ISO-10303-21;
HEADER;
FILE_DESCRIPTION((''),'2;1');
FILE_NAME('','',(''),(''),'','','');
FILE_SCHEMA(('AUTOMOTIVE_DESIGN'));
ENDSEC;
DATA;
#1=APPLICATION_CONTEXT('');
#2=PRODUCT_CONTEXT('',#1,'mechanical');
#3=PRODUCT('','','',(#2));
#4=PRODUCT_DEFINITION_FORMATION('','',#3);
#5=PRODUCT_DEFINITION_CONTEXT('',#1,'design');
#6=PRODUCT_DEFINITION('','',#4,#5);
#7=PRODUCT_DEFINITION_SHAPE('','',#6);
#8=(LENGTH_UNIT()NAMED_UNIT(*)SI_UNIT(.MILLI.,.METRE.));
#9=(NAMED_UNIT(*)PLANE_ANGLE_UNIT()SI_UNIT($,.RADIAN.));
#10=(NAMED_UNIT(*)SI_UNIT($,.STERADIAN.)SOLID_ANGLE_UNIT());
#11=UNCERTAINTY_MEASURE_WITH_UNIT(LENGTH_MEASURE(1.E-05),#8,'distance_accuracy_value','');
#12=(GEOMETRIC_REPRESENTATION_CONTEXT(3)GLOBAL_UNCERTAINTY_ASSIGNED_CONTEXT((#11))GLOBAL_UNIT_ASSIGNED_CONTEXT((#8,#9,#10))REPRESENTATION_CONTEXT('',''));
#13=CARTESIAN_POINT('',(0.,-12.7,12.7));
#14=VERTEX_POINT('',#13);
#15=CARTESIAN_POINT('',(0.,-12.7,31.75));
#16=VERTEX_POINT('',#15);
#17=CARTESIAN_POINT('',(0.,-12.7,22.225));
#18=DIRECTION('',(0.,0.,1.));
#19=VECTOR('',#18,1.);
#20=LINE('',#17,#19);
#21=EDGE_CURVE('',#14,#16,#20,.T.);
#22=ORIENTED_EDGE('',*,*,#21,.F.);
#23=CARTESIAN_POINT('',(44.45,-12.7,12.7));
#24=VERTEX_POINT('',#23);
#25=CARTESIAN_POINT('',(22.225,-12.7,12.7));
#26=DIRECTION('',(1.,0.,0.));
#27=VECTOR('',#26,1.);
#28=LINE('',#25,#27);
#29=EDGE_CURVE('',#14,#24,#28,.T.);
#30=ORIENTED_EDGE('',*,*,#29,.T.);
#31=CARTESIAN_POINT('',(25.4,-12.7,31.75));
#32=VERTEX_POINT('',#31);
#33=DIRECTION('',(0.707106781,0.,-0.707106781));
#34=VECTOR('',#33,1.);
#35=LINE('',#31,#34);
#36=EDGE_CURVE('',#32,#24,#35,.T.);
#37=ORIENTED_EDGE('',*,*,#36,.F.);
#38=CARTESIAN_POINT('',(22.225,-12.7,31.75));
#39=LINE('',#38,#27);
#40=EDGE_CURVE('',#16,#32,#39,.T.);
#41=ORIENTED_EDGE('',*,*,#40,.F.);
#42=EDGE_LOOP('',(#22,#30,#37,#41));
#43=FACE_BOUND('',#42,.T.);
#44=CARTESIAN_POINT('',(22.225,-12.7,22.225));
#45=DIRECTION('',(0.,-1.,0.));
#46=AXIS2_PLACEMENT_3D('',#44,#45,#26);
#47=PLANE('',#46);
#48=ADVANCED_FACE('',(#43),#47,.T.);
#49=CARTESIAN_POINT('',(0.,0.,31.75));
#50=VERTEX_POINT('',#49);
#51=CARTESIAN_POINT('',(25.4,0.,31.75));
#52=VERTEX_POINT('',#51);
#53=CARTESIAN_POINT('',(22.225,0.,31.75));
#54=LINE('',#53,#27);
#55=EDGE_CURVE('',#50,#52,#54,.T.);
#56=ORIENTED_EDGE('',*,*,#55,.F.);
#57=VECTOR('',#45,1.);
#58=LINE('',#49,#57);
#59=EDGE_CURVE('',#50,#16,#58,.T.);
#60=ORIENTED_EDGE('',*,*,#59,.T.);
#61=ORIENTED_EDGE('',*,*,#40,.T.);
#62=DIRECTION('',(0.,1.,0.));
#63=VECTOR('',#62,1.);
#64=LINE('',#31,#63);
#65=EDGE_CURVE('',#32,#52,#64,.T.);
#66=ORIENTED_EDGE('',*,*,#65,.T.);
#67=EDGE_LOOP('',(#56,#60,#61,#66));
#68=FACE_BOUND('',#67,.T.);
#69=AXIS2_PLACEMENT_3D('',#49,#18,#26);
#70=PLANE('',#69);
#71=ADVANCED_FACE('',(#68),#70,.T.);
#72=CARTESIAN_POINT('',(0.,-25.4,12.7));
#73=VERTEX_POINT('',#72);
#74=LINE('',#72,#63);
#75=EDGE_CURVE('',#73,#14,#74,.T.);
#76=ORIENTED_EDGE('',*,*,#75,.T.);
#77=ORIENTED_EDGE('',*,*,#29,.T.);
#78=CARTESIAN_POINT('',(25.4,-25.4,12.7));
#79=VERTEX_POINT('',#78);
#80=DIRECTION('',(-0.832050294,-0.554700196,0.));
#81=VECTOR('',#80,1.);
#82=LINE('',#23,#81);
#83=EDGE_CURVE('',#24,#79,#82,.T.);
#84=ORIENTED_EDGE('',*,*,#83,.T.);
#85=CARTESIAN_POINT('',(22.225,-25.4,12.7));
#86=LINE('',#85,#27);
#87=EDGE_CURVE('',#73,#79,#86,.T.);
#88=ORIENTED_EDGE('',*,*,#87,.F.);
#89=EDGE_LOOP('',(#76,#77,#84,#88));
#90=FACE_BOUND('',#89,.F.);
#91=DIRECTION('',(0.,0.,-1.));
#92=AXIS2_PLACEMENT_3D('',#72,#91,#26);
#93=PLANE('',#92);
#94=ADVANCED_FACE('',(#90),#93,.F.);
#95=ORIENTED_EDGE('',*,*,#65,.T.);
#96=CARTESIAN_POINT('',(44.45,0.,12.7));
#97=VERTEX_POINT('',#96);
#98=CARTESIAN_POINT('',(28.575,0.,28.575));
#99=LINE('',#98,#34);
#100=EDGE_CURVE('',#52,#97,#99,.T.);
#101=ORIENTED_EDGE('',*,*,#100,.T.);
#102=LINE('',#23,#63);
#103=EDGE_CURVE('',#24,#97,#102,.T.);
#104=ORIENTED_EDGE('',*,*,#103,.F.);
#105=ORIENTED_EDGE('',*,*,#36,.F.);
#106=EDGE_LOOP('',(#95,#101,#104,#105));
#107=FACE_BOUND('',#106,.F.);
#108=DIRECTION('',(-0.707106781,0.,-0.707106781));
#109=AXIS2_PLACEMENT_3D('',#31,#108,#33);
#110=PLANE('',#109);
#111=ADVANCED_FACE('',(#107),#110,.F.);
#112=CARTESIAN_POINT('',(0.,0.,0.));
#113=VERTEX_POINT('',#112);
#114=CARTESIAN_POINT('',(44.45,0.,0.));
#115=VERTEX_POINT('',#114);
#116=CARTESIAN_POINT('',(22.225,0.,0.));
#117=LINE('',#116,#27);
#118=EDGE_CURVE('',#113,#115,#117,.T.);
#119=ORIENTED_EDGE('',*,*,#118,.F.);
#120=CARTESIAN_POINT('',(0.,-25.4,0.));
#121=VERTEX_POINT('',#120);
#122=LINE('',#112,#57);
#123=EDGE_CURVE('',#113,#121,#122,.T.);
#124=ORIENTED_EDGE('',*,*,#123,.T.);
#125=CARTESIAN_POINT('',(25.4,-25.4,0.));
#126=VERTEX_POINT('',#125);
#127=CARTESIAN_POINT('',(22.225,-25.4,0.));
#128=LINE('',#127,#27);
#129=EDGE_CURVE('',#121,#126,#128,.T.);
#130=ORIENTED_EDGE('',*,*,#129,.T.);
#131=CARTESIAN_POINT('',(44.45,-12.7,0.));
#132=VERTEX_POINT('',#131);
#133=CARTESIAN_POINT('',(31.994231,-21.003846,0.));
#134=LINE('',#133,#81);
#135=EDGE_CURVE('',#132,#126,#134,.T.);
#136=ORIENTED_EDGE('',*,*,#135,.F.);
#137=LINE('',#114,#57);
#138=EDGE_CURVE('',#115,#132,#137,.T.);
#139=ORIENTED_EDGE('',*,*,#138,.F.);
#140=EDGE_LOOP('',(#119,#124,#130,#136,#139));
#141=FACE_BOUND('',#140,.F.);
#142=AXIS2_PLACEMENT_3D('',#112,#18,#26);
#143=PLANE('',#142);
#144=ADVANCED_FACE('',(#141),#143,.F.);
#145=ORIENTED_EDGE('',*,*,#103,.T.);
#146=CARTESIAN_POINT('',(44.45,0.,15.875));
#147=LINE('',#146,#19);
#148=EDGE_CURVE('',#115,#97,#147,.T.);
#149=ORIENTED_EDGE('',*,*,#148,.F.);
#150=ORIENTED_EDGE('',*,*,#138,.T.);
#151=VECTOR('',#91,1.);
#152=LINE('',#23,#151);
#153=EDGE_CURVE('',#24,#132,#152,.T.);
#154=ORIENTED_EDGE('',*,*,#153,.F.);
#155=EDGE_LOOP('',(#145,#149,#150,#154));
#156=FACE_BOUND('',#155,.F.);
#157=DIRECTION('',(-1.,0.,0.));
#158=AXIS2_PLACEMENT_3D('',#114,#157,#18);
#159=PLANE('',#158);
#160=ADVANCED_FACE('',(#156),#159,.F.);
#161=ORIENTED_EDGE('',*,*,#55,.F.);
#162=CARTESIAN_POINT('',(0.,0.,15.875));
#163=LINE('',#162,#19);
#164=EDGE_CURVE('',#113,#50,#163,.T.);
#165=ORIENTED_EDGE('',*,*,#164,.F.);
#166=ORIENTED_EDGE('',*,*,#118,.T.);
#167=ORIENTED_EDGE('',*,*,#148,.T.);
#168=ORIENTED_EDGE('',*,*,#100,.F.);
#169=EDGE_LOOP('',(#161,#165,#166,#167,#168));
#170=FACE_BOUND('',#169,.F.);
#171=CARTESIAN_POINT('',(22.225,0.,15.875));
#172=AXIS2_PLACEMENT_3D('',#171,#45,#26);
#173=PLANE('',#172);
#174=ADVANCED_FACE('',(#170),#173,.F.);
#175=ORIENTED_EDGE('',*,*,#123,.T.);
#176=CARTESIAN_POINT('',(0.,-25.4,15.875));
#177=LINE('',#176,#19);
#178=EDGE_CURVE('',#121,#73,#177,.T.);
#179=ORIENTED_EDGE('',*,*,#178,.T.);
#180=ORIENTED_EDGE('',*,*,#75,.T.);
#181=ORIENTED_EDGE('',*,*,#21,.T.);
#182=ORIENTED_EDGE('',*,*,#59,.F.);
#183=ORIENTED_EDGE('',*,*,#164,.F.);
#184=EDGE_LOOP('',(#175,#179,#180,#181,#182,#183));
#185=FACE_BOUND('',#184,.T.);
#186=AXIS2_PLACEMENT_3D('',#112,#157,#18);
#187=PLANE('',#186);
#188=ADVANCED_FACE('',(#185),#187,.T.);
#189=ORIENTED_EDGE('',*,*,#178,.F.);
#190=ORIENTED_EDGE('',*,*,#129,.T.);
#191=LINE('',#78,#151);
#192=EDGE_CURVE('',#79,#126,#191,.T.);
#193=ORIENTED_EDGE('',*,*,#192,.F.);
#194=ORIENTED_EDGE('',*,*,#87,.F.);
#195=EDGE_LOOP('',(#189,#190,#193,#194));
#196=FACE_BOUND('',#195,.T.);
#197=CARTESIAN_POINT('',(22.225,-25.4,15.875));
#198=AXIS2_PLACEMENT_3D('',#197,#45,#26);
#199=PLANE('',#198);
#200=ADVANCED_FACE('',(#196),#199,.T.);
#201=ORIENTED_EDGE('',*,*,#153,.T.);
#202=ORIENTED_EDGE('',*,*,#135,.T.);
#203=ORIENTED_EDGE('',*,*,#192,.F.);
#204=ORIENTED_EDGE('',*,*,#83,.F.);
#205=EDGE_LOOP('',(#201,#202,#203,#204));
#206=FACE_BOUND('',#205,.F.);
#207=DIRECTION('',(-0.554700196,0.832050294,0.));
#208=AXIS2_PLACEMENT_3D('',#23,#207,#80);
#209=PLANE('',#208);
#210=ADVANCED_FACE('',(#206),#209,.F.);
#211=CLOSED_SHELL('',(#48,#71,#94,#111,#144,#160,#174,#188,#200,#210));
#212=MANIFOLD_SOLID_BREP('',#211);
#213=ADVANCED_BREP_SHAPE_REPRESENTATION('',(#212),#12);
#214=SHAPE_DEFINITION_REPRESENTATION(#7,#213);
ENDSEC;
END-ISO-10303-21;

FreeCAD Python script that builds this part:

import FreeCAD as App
import Part
import Sketcher

V = App.Vector
Q = App.Units.Quantity

doc = App.newDocument("Part")
params = doc.addObject("Spreadsheet::Sheet", "Params")
for row, (alias, value) in enumerate([
    ("sketch1_width", "1.75 in"),
    ("sketch1_height", "1.25 in"),
    ("pad1_length", "1 in"),
    ("sketch2_width", "1.75 in"),
    ("sketch2_height", "0.75 in"),
    ("pocket1_length", "0.5 in"),
    ("sketch3_width", "0.75 in"),
    ("sketch4_height", "0.5 in"),
    ("sketch4_width", "0.75 in"),
], start=1):
    params.set(f"A{row}", alias)
    params.set(f"B{row}", "=" + value)
    params.setAlias(f"B{row}", alias)

body = doc.addObject("PartDesign::Body", "Body")

sketch1 = doc.addObject("Sketcher::SketchObject", "Sketch")
body.addObject(sketch1)
sketch1.AttachmentSupport = (doc.XZ_Plane, [""])
sketch1.MapMode = "FlatFace"
sketch1.addGeometry([
    Part.LineSegment(V(0, 31.75, 0), V(0, 0, 0)),
    Part.LineSegment(V(0, 0, 0), V(44.45, 0, 0)),
    Part.LineSegment(V(44.45, 0, 0), V(44.45, 31.75, 0)),
    Part.LineSegment(V(44.45, 31.75, 0), V(0, 31.75, 0)),
], False)
sketch1.addConstraint([
    Sketcher.Constraint("Coincident", 0, 2, 1, 1),
    Sketcher.Constraint("Coincident", 1, 2, 2, 1),
    Sketcher.Constraint("Coincident", 2, 2, 3, 1),
    Sketcher.Constraint("Coincident", 3, 2, 0, 1),
    Sketcher.Constraint("Vertical", 0),
    Sketcher.Constraint("Horizontal", 1),
    Sketcher.Constraint("Vertical", 2),
    Sketcher.Constraint("Horizontal", 3),
    Sketcher.Constraint("Coincident", 0, 2, -1, 1),
    Sketcher.Constraint("DistanceX", 1, 1, 1, 2, Q("1.75 in")),
    Sketcher.Constraint("DistanceY", 0, 2, 0, 1, Q("1.25 in")),
])
sketch1.setExpression("Constraints[9]", "Params.sketch1_width")
sketch1.setExpression("Constraints[10]", "Params.sketch1_height")
pad1 = doc.addObject("PartDesign::Pad", "Pad")
body.addObject(pad1)
pad1.Profile = sketch1
pad1.setExpression("Length", "Params.pad1_length")

sketch2 = doc.addObject("Sketcher::SketchObject", "Sketch001")
body.addObject(sketch2)
sketch2.AttachmentSupport = (doc.XZ_Plane, [""])
sketch2.MapMode = "FlatFace"
sketch2.AttachmentOffset = App.Placement(V(0, 0, 1 * 25.4), App.Rotation())
sketch2.addGeometry([
    Part.LineSegment(V(0, 31.75, 0), V(0, 12.7, 0)),
    Part.LineSegment(V(0, 12.7, 0), V(44.45, 12.7, 0)),
    Part.LineSegment(V(44.45, 12.7, 0), V(44.45, 31.75, 0)),
    Part.LineSegment(V(44.45, 31.75, 0), V(0, 31.75, 0)),
], False)
sketch2.addConstraint([
    Sketcher.Constraint("Coincident", 0, 2, 1, 1),
    Sketcher.Constraint("Coincident", 1, 2, 2, 1),
    Sketcher.Constraint("Coincident", 2, 2, 3, 1),
    Sketcher.Constraint("Coincident", 3, 2, 0, 1),
    Sketcher.Constraint("Vertical", 0),
    Sketcher.Constraint("Horizontal", 1),
    Sketcher.Constraint("Vertical", 2),
    Sketcher.Constraint("Horizontal", 3),
    Sketcher.Constraint("PointOnObject", 0, 2, -2),
    Sketcher.Constraint("DistanceX", 1, 1, 1, 2, Q("1.75 in")),
    Sketcher.Constraint("DistanceY", 0, 2, 0, 1, Q("0.75 in")),
    Sketcher.Constraint("DistanceY", -1, 1, 0, 2, Q("0.5 in")),
])
sketch2.setExpression("Constraints[9]", "Params.sketch2_width")
sketch2.setExpression("Constraints[10]", "Params.sketch2_height")
pocket1 = doc.addObject("PartDesign::Pocket", "Pocket")
body.addObject(pocket1)
pocket1.Profile = sketch2
pocket1.setExpression("Length", "Params.pocket1_length")

sketch3 = doc.addObject("Sketcher::SketchObject", "Sketch002")
body.addObject(sketch3)
sketch3.AttachmentSupport = (doc.XZ_Plane, [""])
sketch3.MapMode = "FlatFace"
sketch3.AttachmentOffset = App.Placement(V(0, 0, 0.5 * 25.4), App.Rotation())
sketch3.addGeometry([
    Part.LineSegment(V(44.45, 31.75, 0), V(25.4, 31.75, 0)),
    Part.LineSegment(V(25.4, 31.75, 0), V(44.45, 12.7, 0)),
    Part.LineSegment(V(44.45, 12.7, 0), V(44.45, 31.75, 0)),
], False)
sketch3.addConstraint([
    Sketcher.Constraint("Coincident", 0, 2, 1, 1),
    Sketcher.Constraint("Coincident", 1, 2, 2, 1),
    Sketcher.Constraint("Coincident", 2, 2, 0, 1),
    Sketcher.Constraint("Horizontal", 0),
    Sketcher.Constraint("Vertical", 2),
    Sketcher.Constraint("Equal", 0, 2),
    Sketcher.Constraint("DistanceX", -1, 1, 0, 2, Q("1 in")),
    Sketcher.Constraint("DistanceX", 0, 2, 0, 1, Q("0.75 in")),
    Sketcher.Constraint("DistanceY", -1, 1, 1, 2, Q("0.5 in")),
])
sketch3.setExpression("Constraints[7]", "Params.sketch3_width")
pocket2 = doc.addObject("PartDesign::Pocket", "Pocket001")
body.addObject(pocket2)
pocket2.Profile = sketch3
pocket2.Type = "ThroughAll"

sketch4 = doc.addObject("Sketcher::SketchObject", "Sketch003")
body.addObject(sketch4)
sketch4.AttachmentSupport = (doc.XY_Plane, [""])
sketch4.MapMode = "FlatFace"
sketch4.AttachmentOffset = App.Placement(V(0, 0, 0.5 * 25.4), App.Rotation())
sketch4.addGeometry([
    Part.LineSegment(V(44.45, -25.4, 0), V(44.45, -12.7, 0)),
    Part.LineSegment(V(44.45, -12.7, 0), V(25.4, -25.4, 0)),
    Part.LineSegment(V(25.4, -25.4, 0), V(44.45, -25.4, 0)),
], False)
sketch4.addConstraint([
    Sketcher.Constraint("Coincident", 0, 2, 1, 1),
    Sketcher.Constraint("Coincident", 1, 2, 2, 1),
    Sketcher.Constraint("Coincident", 2, 2, 0, 1),
    Sketcher.Constraint("Vertical", 0),
    Sketcher.Constraint("Horizontal", 2),
    Sketcher.Constraint("DistanceY", 0, 1, 0, 2, Q("0.5 in")),
    Sketcher.Constraint("DistanceX", -1, 1, 1, 2, Q("1 in")),
    Sketcher.Constraint("DistanceY", 1, 2, -1, 1, Q("1 in")),
    Sketcher.Constraint("DistanceX", 2, 1, 2, 2, Q("0.75 in")),
])
sketch4.setExpression("Constraints[5]", "Params.sketch4_height")
sketch4.setExpression("Constraints[8]", "Params.sketch4_width")
pocket3 = doc.addObject("PartDesign::Pocket", "Pocket002")
body.addObject(pocket3)
pocket3.Profile = sketch4
pocket3.Type = "ThroughAll"

doc.recompute()
